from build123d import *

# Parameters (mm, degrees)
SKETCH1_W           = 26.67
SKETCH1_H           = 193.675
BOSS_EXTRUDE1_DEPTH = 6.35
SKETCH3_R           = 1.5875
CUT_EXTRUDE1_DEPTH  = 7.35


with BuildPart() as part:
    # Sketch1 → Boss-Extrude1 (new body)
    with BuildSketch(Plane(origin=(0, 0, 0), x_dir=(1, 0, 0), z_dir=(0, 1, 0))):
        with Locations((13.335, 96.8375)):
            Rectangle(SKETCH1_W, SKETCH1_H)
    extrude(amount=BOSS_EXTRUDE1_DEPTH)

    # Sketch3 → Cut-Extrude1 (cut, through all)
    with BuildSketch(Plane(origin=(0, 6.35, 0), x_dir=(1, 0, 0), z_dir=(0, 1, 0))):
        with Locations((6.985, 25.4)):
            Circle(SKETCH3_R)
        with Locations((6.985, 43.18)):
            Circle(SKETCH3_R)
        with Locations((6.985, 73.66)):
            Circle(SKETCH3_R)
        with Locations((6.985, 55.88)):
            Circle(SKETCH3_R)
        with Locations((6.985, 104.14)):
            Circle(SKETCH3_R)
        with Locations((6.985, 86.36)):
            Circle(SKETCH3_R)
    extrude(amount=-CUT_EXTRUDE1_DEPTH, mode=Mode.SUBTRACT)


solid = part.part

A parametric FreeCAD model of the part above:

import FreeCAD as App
import Part
import Sketcher
from FreeCAD import Vector
Q = App.Units.Quantity


def add_polygon(sketch, points):
    """Adds a closed chain of lines whose ends are joined by coincident constraints."""
    first, n = sketch.GeometryCount, len(points)
    for a, b in zip(points, points[1:] + points[:1]):
        sketch.addGeometry(Part.LineSegment(App.Vector(*a, 0), App.Vector(*b, 0)), False)
    for i in range(n):
        sketch.addConstraint(Sketcher.Constraint("Coincident", first + i, 2, first + (i + 1) % n, 1))

doc = App.newDocument("Part")
body = doc.addObject("PartDesign::Body", "Body")

# Sketch on XZ plane
sketch1 = body.newObject("Sketcher::SketchObject", "Sketch")
sketch1.AttachmentSupport = (doc.getObject("XZ_Plane"), [""])
sketch1.MapMode = "FlatFace"
add_polygon(sketch1, [(0, -193.675), (0, 0), (26.67, 0), (26.67, -193.675)])  # lines 0-3
sketch1.addConstraint([
    Sketcher.Constraint("Vertical", 0),
    Sketcher.Constraint("Horizontal", 1),
    Sketcher.Constraint("Vertical", 2),
    Sketcher.Constraint("Horizontal", 3),
    Sketcher.Constraint("Coincident", 0, 2, -1, 1),
    Sketcher.Constraint("DistanceX", 1, 1, 1, 2, Q("1.05 in")),
    Sketcher.Constraint("DistanceY", 0, 1, 0, 2, Q("7.625 in")),
])
pad1 = body.newObject("PartDesign::Pad", "Pad")
pad1.Profile = sketch1
pad1.Length = Q("0.25 in")
pad1.Reversed = True

# Sketch on XZ plane
sketch2 = body.newObject("Sketcher::SketchObject", "Sketch001")
sketch2.AttachmentSupport = (doc.getObject("XZ_Plane"), [""])
sketch2.MapMode = "FlatFace"
sketch2.AttachmentOffset = App.Placement(Vector(0, 0, -0.25 * 25.4), App.Rotation())
sketch2.addGeometry([
    Part.Circle(Vector(6.985, -25.4, 0), Vector(0, 0, 1), 1.5875),  # 0
    Part.Circle(Vector(6.985, -43.18, 0), Vector(0, 0, 1), 1.5875),  # 1
    Part.Circle(Vector(6.985, -73.66, 0), Vector(0, 0, 1), 1.5875),  # 2
    Part.Circle(Vector(6.985, -55.88, 0), Vector(0, 0, 1), 1.5875),  # 3
    Part.Circle(Vector(6.985, -104.14, 0), Vector(0, 0, 1), 1.5875),  # 4
    Part.Circle(Vector(6.985, -86.36, 0), Vector(0, 0, 1), 1.5875),  # 5
], False)
sketch2.addConstraint([
    Sketcher.Constraint("Equal", 0, 1),
    Sketcher.Constraint("Equal", 1, 2),
    Sketcher.Constraint("Equal", 2, 3),
    Sketcher.Constraint("Equal", 3, 4),
    Sketcher.Constraint("Equal", 4, 5),
    Sketcher.Constraint("Vertical", 0, 3, 1, 3),
    Sketcher.Constraint("Vertical", 1, 3, 2, 3),
    Sketcher.Constraint("Vertical", 2, 3, 3, 3),
    Sketcher.Constraint("Vertical", 3, 3, 4, 3),
    Sketcher.Constraint("Vertical", 4, 3, 5, 3),
    Sketcher.Constraint("Diameter", 0, Q("0.125 in")),
    Sketcher.Constraint("DistanceY", 0, 3, -1, 1, Q("1 in")),
    Sketcher.Constraint("DistanceY", 1, 3, -1, 1, Q("1.7 in")),
    Sketcher.Constraint("DistanceY", 2, 3, -1, 1, Q("2.9 in")),
    Sketcher.Constraint("DistanceY", 3, 3, -1, 1, Q("2.2 in")),
    Sketcher.Constraint("DistanceY", 4, 3, -1, 1, Q("4.1 in")),
    Sketcher.Constraint("DistanceY", 5, 3, -1, 1, Q("3.4 in")),
    Sketcher.Constraint("DistanceX", -1, 1, 0, 3, Q("0.275 in")),
])
pocket1 = body.newObject("PartDesign::Pocket", "Pocket")
pocket1.Profile = sketch2
pocket1.Type = "ThroughAll"
pocket1.Reversed = True

doc.recompute()
